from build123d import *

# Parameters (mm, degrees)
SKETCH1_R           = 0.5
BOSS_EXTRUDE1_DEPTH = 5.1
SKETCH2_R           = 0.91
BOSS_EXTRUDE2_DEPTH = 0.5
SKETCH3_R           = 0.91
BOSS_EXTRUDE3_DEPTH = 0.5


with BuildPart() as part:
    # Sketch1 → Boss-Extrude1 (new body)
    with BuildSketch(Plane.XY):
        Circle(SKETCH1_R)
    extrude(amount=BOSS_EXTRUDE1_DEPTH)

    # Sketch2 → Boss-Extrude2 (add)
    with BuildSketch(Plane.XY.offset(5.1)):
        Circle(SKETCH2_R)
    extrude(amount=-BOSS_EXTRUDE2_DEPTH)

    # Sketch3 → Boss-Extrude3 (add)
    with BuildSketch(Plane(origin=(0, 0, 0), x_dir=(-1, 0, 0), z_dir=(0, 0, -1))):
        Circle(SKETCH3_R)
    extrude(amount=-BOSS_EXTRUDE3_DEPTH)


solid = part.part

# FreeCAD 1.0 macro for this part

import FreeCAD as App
import Part
import Sketcher

V = App.Vector

doc = App.newDocument("Part")
params = doc.addObject("Spreadsheet::Sheet", "Params")
for row, (alias, value) in enumerate([
    ("sketch1_diameter", "1 mm"),
    ("pad1_length", "5.1 mm"),
    ("sketch2_diameter", "1.82 mm"),
    ("pad2_length", "0.5 mm"),
    ("sketch3_diameter", "1.82 mm"),
    ("pad3_length", "0.5 mm"),
], start=1):
    params.set(f"A{row}", alias)
    params.set(f"B{row}", "=" + value)
    params.setAlias(f"B{row}", alias)

body = doc.addObject("PartDesign::Body", "Body")

# Sketch on XY plane
sketch1 = body.newObject("Sketcher::SketchObject", "Sketch")
sketch1.AttachmentSupport = (doc.getObject("XY_Plane"), [""])
sketch1.MapMode = "FlatFace"
sketch1.addGeometry(Part.Circle(V(0, 0, 0), V(0, 0, 1), 0.5), False)
sketch1.addConstraint(Sketcher.Constraint("Coincident", 0, 3, -1, 1))
sketch1.addConstraint(Sketcher.Constraint("Diameter", 0, 1.0))
sketch1.setExpression("Constraints[1]", "Params.sketch1_diameter")
pad1 = body.newObject("PartDesign::Pad", "Pad")
pad1.Profile = sketch1
pad1.setExpression("Length", "Params.pad1_length")

# Sketch on XY plane
sketch2 = body.newObject("Sketcher::SketchObject", "Sketch001")
sketch2.AttachmentSupport = (doc.getObject("XY_Plane"), [""])
sketch2.MapMode = "FlatFace"
sketch2.AttachmentOffset = App.Placement(V(0, 0, 5.1), App.Rotation())
sketch2.addGeometry(Part.Circle(V(0, 0, 0), V(0, 0, 1), 0.9), False)
sketch2.addConstraint(Sketcher.Constraint("Coincident", 0, 3, -1, 1))
sketch2.addConstraint(Sketcher.Constraint("Diameter", 0, 1.82))
sketch2.setExpression("Constraints[1]", "Params.sketch2_diameter")
pad2 = body.newObject("PartDesign::Pad", "Pad001")
pad2.Profile = sketch2
pad2.setExpression("Length", "Params.pad2_length")
pad2.Reversed = True

# Sketch on XY plane
sketch3 = body.newObject("Sketcher::SketchObject", "Sketch002")
sketch3.AttachmentSupport = (doc.getObject("XY_Plane"), [""])
sketch3.MapMode = "FlatFace"
sketch3.addGeometry(Part.Circle(V(0, 0, 0), V(0, 0, 1), 0.9), False)
sketch3.addConstraint(Sketcher.Constraint("Coincident", 0, 3, -1, 1))
sketch3.addConstraint(Sketcher.Constraint("Diameter", 0, 1.82))
sketch3.setExpression("Constraints[1]", "Params.sketch3_diameter")
pad3 = body.newObject("PartDesign::Pad", "Pad002")
pad3.Profile = sketch3
pad3.setExpression("Length", "Params.pad3_length")

doc.recompute()
